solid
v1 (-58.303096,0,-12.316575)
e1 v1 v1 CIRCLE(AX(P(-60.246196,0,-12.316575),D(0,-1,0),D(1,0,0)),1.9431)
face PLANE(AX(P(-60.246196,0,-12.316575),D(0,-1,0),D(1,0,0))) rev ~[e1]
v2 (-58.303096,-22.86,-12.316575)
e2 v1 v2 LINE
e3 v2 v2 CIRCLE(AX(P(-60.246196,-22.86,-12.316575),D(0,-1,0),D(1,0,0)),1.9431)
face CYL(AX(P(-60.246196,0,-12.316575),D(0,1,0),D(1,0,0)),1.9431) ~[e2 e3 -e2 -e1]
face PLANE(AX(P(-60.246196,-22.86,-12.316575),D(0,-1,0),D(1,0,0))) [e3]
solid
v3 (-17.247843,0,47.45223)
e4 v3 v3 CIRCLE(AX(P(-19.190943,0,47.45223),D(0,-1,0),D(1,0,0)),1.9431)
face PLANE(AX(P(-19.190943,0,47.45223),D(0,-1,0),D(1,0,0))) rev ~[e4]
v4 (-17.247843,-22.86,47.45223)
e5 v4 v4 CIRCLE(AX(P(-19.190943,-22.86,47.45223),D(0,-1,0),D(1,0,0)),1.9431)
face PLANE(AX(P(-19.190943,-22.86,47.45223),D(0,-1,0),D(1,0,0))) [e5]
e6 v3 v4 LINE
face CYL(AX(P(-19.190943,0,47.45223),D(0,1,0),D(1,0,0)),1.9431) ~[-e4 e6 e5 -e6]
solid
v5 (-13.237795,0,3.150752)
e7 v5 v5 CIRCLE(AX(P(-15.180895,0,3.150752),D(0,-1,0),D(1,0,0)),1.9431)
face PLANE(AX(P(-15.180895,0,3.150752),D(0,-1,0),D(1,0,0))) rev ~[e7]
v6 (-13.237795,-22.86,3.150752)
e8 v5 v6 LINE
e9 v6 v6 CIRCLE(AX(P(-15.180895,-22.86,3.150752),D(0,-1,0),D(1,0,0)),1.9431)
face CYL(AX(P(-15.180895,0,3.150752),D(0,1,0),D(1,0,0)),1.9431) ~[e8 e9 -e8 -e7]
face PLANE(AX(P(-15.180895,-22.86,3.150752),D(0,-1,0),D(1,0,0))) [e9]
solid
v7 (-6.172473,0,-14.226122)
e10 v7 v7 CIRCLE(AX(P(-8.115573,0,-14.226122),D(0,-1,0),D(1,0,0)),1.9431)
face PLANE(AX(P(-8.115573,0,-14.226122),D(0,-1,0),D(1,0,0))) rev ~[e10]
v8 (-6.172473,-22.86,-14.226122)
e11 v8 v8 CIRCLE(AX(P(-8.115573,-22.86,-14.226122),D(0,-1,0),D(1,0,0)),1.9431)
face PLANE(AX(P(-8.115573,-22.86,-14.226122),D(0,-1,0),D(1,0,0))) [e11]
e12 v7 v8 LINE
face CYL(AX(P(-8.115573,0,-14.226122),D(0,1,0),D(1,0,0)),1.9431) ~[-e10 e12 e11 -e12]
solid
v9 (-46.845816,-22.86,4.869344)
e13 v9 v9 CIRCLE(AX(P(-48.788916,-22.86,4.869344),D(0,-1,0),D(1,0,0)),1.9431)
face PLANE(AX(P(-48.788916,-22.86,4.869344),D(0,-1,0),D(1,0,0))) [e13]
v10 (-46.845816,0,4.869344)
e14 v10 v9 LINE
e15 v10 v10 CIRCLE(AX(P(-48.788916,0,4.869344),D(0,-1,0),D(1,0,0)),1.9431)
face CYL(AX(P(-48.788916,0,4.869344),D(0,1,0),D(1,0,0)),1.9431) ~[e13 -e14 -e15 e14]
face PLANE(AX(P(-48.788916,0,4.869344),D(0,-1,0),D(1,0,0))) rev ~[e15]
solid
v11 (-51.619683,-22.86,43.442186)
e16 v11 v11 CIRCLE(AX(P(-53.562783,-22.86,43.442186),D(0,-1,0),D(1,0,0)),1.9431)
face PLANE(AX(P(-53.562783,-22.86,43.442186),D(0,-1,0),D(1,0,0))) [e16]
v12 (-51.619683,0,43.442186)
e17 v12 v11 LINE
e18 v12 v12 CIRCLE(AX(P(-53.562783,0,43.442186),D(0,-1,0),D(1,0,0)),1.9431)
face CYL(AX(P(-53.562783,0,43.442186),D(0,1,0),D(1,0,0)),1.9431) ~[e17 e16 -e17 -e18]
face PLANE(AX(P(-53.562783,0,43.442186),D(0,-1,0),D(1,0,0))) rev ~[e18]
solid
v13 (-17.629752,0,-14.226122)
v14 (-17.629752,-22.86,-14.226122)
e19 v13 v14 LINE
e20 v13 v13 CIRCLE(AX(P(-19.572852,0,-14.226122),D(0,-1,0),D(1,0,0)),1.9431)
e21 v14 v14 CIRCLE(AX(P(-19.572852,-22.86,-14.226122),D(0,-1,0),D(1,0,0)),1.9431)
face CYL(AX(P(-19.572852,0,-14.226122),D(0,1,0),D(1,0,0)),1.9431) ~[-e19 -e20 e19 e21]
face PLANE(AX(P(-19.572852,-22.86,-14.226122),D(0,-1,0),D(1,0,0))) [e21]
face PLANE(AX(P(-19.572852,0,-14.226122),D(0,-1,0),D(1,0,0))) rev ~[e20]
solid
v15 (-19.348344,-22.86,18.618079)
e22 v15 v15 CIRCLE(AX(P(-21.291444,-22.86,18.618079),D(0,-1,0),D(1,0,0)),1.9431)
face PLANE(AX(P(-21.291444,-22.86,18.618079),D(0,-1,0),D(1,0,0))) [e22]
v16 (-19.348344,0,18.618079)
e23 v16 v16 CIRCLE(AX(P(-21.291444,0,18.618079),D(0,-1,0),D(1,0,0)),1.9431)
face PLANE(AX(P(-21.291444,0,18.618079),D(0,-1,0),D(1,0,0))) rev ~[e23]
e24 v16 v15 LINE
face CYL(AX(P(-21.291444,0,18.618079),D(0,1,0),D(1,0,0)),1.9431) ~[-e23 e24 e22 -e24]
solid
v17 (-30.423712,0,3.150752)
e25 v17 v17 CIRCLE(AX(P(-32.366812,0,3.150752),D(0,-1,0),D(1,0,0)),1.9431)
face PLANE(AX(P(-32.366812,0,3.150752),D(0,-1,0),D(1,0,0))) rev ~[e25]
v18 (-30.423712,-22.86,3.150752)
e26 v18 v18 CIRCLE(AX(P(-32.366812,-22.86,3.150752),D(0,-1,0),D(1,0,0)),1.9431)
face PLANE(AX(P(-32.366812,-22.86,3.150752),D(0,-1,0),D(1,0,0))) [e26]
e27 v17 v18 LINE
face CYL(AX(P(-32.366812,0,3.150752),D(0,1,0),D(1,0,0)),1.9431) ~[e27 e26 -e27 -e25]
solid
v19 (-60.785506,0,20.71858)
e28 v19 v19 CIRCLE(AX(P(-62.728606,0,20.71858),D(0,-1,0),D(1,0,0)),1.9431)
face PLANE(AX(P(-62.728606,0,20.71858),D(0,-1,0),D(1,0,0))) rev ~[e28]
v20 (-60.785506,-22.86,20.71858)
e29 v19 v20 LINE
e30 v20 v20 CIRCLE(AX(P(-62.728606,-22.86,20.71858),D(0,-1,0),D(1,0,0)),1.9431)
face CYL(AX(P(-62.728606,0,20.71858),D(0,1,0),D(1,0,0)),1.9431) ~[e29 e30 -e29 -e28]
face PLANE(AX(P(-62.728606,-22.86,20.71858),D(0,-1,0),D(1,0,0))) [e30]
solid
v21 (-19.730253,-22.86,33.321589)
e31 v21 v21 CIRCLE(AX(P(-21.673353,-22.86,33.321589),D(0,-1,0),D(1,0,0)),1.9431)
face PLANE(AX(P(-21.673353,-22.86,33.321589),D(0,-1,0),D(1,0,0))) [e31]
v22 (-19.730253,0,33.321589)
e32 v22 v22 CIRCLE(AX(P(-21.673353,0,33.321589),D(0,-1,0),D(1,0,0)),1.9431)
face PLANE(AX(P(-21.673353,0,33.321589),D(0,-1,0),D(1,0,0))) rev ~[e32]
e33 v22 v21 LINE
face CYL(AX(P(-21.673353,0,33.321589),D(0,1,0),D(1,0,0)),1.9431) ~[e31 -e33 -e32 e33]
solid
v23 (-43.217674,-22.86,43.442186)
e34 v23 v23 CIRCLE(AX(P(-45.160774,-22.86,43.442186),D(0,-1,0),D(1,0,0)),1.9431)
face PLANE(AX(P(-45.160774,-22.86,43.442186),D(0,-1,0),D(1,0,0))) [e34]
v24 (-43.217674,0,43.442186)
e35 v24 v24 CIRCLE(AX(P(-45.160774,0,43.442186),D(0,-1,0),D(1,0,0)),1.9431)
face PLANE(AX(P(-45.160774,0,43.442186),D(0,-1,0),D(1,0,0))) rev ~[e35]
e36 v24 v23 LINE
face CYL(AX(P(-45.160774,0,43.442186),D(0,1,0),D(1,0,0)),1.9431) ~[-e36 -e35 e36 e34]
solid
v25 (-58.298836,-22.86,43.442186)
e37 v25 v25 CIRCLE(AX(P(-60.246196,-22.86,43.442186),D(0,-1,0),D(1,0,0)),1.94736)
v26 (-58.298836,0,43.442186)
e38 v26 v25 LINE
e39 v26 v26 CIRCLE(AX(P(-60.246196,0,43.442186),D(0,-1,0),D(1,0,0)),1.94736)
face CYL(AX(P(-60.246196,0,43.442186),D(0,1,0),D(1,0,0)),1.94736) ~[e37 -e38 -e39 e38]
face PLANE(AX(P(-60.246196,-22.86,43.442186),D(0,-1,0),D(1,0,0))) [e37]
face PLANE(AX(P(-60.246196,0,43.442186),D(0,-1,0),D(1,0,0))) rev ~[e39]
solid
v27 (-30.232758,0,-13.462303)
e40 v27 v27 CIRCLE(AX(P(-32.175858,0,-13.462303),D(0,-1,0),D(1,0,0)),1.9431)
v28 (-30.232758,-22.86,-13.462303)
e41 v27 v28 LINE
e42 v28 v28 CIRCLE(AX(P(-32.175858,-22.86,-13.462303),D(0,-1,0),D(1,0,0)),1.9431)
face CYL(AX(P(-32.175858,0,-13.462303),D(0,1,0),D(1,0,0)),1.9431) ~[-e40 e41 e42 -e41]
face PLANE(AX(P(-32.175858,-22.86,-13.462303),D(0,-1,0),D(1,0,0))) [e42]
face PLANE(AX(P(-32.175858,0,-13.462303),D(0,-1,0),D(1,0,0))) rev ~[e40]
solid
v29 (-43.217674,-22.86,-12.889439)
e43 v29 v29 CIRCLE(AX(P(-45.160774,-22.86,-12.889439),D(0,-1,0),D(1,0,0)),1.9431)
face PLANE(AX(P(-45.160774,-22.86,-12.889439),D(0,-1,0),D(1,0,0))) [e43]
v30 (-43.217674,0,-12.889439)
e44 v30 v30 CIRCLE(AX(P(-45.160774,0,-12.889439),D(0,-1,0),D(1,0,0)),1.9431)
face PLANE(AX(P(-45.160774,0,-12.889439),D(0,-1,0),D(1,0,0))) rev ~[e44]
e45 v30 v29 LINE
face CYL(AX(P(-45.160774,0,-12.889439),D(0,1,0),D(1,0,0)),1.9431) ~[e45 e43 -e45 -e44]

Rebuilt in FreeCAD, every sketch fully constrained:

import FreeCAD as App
import Part
import Sketcher
Q = App.Units.Quantity

doc = App.newDocument("Part")
body = doc.addObject("PartDesign::Body", "Body")
body.AllowCompound = True

sketch1 = body.newObject("Sketcher::SketchObject", "Sketch")
sketch1.AttachmentSupport = (doc.getObject("XZ_Plane"), [""])
sketch1.MapMode = "FlatFace"
sketch1.addGeometry(Part.Circle(App.Vector(-60.2, 43.4, 0), App.Vector(0, 0, 1), 1.9), False)
sketch1.addGeometry(Part.Circle(App.Vector(-53.6, 43.4, 0), App.Vector(0, 0, 1), 1.9), False)
sketch1.addGeometry(Part.Circle(App.Vector(-45.2, 43.4, 0), App.Vector(0, 0, 1), 1.9), False)
sketch1.addGeometry(Part.Circle(App.Vector(-62.7, 20.7, 0), App.Vector(0, 0, 1), 1.9), False)
sketch1.addGeometry(Part.Circle(App.Vector(-21.3, 18.6, 0), App.Vector(0, 0, 1), 1.9), False)
sketch1.addGeometry(Part.Circle(App.Vector(-21.7, 33.3, 0), App.Vector(0, 0, 1), 1.9), False)
sketch1.addGeometry(Part.Circle(App.Vector(-19.2, 47.5, 0), App.Vector(0, 0, 1), 1.9), False)
sketch1.addGeometry(Part.Circle(App.Vector(-48.8, 4.9, 0), App.Vector(0, 0, 1), 1.9), False)
sketch1.addGeometry(Part.Circle(App.Vector(-32.4, 3.2, 0), App.Vector(0, 0, 1), 1.9), False)
sketch1.addGeometry(Part.Circle(App.Vector(-15.2, 3.2, 0), App.Vector(0, 0, 1), 1.9), False)
sketch1.addGeometry(Part.Circle(App.Vector(-60.2, -12.3, 0), App.Vector(0, 0, 1), 1.9), False)
sketch1.addGeometry(Part.Circle(App.Vector(-45.2, -12.9, 0), App.Vector(0, 0, 1), 1.9), False)
sketch1.addGeometry(Part.Circle(App.Vector(-32.2, -13.5, 0), App.Vector(0, 0, 1), 1.9), False)
sketch1.addGeometry(Part.Circle(App.Vector(-19.6, -14.2, 0), App.Vector(0, 0, 1), 1.9), False)
sketch1.addGeometry(Part.Circle(App.Vector(-8.1, -14.2, 0), App.Vector(0, 0, 1), 1.9), False)
sketch1.addConstraint(Sketcher.Constraint("Equal", 1, 2))
sketch1.addConstraint(Sketcher.Constraint("Equal", 2, 3))
sketch1.addConstraint(Sketcher.Constraint("Equal", 3, 4))
sketch1.addConstraint(Sketcher.Constraint("Equal", 4, 5))
sketch1.addConstraint(Sketcher.Constraint("Equal", 5, 6))
sketch1.addConstraint(Sketcher.Constraint("Equal", 6, 7))
sketch1.addConstraint(Sketcher.Constraint("Equal", 7, 8))
sketch1.addConstraint(Sketcher.Constraint("Equal", 8, 9))
sketch1.addConstraint(Sketcher.Constraint("Equal", 9, 10))
sketch1.addConstraint(Sketcher.Constraint("Equal", 10, 11))
sketch1.addConstraint(Sketcher.Constraint("Equal", 11, 12))
sketch1.addConstraint(Sketcher.Constraint("Equal", 12, 13))
sketch1.addConstraint(Sketcher.Constraint("Equal", 13, 14))
sketch1.addConstraint(Sketcher.Constraint("Horizontal", 0, 3, 1, 3))
sketch1.addConstraint(Sketcher.Constraint("Horizontal", 1, 3, 2, 3))
sketch1.addConstraint(Sketcher.Constraint("Horizontal", 8, 3, 9, 3))
sketch1.addConstraint(Sketcher.Constraint("Horizontal", 13, 3, 14, 3))
sketch1.addConstraint(Sketcher.Constraint("Vertical", 0, 3, 10, 3))
sketch1.addConstraint(Sketcher.Constraint("Vertical", 2, 3, 11, 3))
sketch1.addConstraint(Sketcher.Constraint("Diameter", 1, Q("0.153 in")))
sketch1.addConstraint(Sketcher.Constraint("Diameter", 0, 3.89472))
sketch1.addConstraint(Sketcher.Constraint("DistanceY", 4, 3, 3, 3, 2.100501))
sketch1.addConstraint(Sketcher.Constraint("DistanceX", 4, 3, 6, 3, 2.100501))
sketch1.addConstraint(Sketcher.Constraint("DistanceX", 10, 3, 9, 3, 45.065301))
sketch1.addConstraint(Sketcher.Constraint("DistanceY", 13, 3, 4, 3, 32.844201))
sketch1.addConstraint(Sketcher.Constraint("DistanceY", -1, 1, 3, 3, 20.71858))
sketch1.addConstraint(Sketcher.Constraint("DistanceY", -1, 1, 5, 3, 33.321589))
sketch1.addConstraint(Sketcher.Constraint("DistanceY", -1, 1, 6, 3, 47.45223))
sketch1.addConstraint(Sketcher.Constraint("DistanceY", 11, 3, -1, 1, 12.889439))
sketch1.addConstraint(Sketcher.Constraint("DistanceX", 1, 3, 2, 3, 8.402009))
sketch1.addConstraint(Sketcher.Constraint("DistanceX", 0, 3, 2, 3, 15.085422))
sketch1.addConstraint(Sketcher.Constraint("DistanceX", 3, 3, 0, 3, 2.48241))
sketch1.addConstraint(Sketcher.Constraint("DistanceX", 2, 3, 4, 3, 23.86933))
sketch1.addConstraint(Sketcher.Constraint("DistanceX", 5, 3, 4, 3, 0.381909))
sketch1.addConstraint(Sketcher.Constraint("DistanceX", 3, 3, 7, 3, 13.93969))
sketch1.addConstraint(Sketcher.Constraint("DistanceY", 8, 3, 7, 3, 1.718592))
sketch1.addConstraint(Sketcher.Constraint("DistanceX", 8, 3, 4, 3, 11.075368))
sketch1.addConstraint(Sketcher.Constraint("DistanceY", 9, 3, 6, 3, 44.301478))
sketch1.addConstraint(Sketcher.Constraint("DistanceY", 10, 3, 7, 3, 17.185919))
sketch1.addConstraint(Sketcher.Constraint("DistanceX", 7, 3, 12, 3, 16.613058))
sketch1.addConstraint(Sketcher.Constraint("DistanceY", 12, 3, 10, 3, 1.145728))
sketch1.addConstraint(Sketcher.Constraint("DistanceX", 8, 3, 13, 3, 12.79396))
sketch1.addConstraint(Sketcher.Constraint("DistanceX", 13, 3, 14, 3, 11.457279))
sketch1.addConstraint(Sketcher.Constraint("DistanceX", 0, 3, -1, 1, 60.246196))
sketch1.addConstraint(Sketcher.Constraint("DistanceY", -1, 1, 0, 3, 43.442186))
pad1 = body.newObject("PartDesign::Pad", "Pad")
pad1.Profile = sketch1
pad1.Length = Q("0.9 in")

doc.recompute()
